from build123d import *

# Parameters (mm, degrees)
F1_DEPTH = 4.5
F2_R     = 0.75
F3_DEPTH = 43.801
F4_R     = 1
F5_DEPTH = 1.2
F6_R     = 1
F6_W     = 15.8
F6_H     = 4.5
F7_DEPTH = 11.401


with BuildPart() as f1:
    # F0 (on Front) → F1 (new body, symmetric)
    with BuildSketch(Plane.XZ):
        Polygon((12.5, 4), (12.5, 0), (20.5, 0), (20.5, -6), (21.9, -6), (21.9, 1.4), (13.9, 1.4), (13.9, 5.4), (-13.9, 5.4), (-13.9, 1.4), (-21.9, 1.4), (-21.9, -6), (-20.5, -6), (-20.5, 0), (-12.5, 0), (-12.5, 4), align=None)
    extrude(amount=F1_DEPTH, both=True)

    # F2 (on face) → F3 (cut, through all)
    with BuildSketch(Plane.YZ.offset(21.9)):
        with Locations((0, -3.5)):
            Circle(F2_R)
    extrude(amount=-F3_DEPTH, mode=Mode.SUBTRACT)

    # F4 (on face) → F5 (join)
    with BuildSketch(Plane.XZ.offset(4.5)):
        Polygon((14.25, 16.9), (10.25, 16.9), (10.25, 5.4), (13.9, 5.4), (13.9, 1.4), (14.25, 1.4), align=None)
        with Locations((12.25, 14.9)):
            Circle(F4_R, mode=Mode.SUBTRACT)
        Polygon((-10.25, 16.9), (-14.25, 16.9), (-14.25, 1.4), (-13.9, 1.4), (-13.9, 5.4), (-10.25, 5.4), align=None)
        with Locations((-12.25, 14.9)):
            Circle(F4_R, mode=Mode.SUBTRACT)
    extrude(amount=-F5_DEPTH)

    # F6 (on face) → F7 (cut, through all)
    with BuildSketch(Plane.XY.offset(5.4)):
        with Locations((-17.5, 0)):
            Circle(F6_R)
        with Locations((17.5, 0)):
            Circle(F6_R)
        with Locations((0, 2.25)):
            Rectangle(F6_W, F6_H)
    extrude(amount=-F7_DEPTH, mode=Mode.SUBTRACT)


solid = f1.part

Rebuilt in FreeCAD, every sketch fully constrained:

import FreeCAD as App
import Part
import Sketcher
from FreeCAD import Vector
Q = App.Units.Quantity

doc = App.newDocument("Part")
body = doc.addObject("PartDesign::Body", "Body")

sketch1 = body.newObject("Sketcher::SketchObject", "Sketch")
sketch1.AttachmentSupport = (doc.getObject("XZ_Plane"), [""])
sketch1.MapMode = "FlatFace"
sketch1.addGeometry([
    Part.LineSegment(Vector(12.5, 4, 0), Vector(12.5, 0, 0)),
    Part.LineSegment(Vector(12.5, 0, 0), Vector(20.5, 0, 0)),
    Part.LineSegment(Vector(20.5, 0, 0), Vector(20.5, -6, 0)),
    Part.LineSegment(Vector(20.5, -6, 0), Vector(21.9, -6, 0)),
    Part.LineSegment(Vector(21.9, -6, 0), Vector(21.9, 1.4, 0)),
    Part.LineSegment(Vector(21.9, 1.4, 0), Vector(13.9, 1.4, 0)),
    Part.LineSegment(Vector(13.9, 1.4, 0), Vector(13.9, 5.4, 0)),
    Part.LineSegment(Vector(13.9, 5.4, 0), Vector(-13.9, 5.4, 0)),
    Part.LineSegment(Vector(-13.9, 5.4, 0), Vector(-13.9, 1.4, 0)),
    Part.LineSegment(Vector(-13.9, 1.4, 0), Vector(-21.9, 1.4, 0)),
    Part.LineSegment(Vector(-21.9, 1.4, 0), Vector(-21.9, -6, 0)),
    Part.LineSegment(Vector(-21.9, -6, 0), Vector(-20.5, -6, 0)),
    Part.LineSegment(Vector(-20.5, -6, 0), Vector(-20.5, 0, 0)),
    Part.LineSegment(Vector(-20.5, 0, 0), Vector(-12.5, 0, 0)),
    Part.LineSegment(Vector(-12.5, 0, 0), Vector(-12.5, 4, 0)),
    Part.LineSegment(Vector(-12.5, 4, 0), Vector(12.5, 4, 0)),
], False)
sketch1.addConstraint([
    Sketcher.Constraint("Coincident", 0, 2, 1, 1),
    Sketcher.Constraint("Coincident", 1, 2, 2, 1),
    Sketcher.Constraint("Coincident", 2, 2, 3, 1),
    Sketcher.Constraint("Coincident", 3, 2, 4, 1),
    Sketcher.Constraint("Coincident", 4, 2, 5, 1),
    Sketcher.Constraint("Coincident", 5, 2, 6, 1),
    Sketcher.Constraint("Coincident", 6, 2, 7, 1),
    Sketcher.Constraint("Coincident", 7, 2, 8, 1),
    Sketcher.Constraint("Coincident", 8, 2, 9, 1),
    Sketcher.Constraint("Coincident", 9, 2, 10, 1),
    Sketcher.Constraint("Coincident", 10, 2, 11, 1),
    Sketcher.Constraint("Coincident", 11, 2, 12, 1),
    Sketcher.Constraint("Coincident", 12, 2, 13, 1),
    Sketcher.Constraint("Coincident", 13, 2, 14, 1),
    Sketcher.Constraint("Coincident", 14, 2, 15, 1),
    Sketcher.Constraint("Coincident", 15, 2, 0, 1),
    Sketcher.Constraint("Vertical", 0),
    Sketcher.Constraint("Horizontal", 1),
    Sketcher.Constraint("Vertical", 2),
    Sketcher.Constraint("Horizontal", 3),
    Sketcher.Constraint("Vertical", 4),
    Sketcher.Constraint("Horizontal", 5),
    Sketcher.Constraint("Vertical", 6),
    Sketcher.Constraint("Horizontal", 7),
    Sketcher.Constraint("Vertical", 8),
    Sketcher.Constraint("Horizontal", 9),
    Sketcher.Constraint("Vertical", 10),
    Sketcher.Constraint("Horizontal", 11),
    Sketcher.Constraint("Vertical", 12),
    Sketcher.Constraint("Horizontal", 13),
    Sketcher.Constraint("Vertical", 14),
    Sketcher.Constraint("Horizontal", 15),
    Sketcher.Constraint("Symmetric", 1, 2, 12, 2, -1, 1),
    Sketcher.Constraint("Symmetric", 5, 2, 8, 2, -2),
    Sketcher.Constraint("Symmetric", 3, 2, 10, 2, -2),
    Sketcher.Constraint("Symmetric", 0, 2, 13, 2, -2),
    Sketcher.Constraint("Equal", 1, 5),
    Sketcher.Constraint("Equal", 0, 6),
    Sketcher.Constraint("DistanceX", 1, 1, 1, 2, Q("8 mm")),
    Sketcher.Constraint("DistanceX", 15, 1, 15, 2, Q("25 mm")),
    Sketcher.Constraint("DistanceY", 0, 2, 0, 1, Q("4 mm")),
    Sketcher.Constraint("DistanceY", 2, 2, 2, 1, Q("6 mm")),
    Sketcher.Constraint("DistanceX", 3, 1, 3, 2, Q("1.4 mm")),
    Sketcher.Constraint("DistanceY", 4, 1, 4, 2, Q("7.4 mm")),
])
pad1 = body.newObject("PartDesign::Pad", "Pad")
pad1.Profile = sketch1
pad1.Length = 9
pad1.Midplane = True

sketch2 = body.newObject("Sketcher::SketchObject", "Sketch001")
sketch2.AttachmentSupport = (doc.getObject("YZ_Plane"), [""])
sketch2.MapMode = "FlatFace"
sketch2.AttachmentOffset = App.Placement(Vector(0, 0, 21.9), App.Rotation())
sketch2.addGeometry(Part.Circle(Vector(0, -3.5, 0), Vector(0, 0, 1), 0.8), False)
sketch2.addConstraint([
    Sketcher.Constraint("PointOnObject", 0, 3, -2),
    Sketcher.Constraint("Diameter", 0, Q("1.5 mm")),
    Sketcher.Constraint("DistanceY", 0, 3, -1, 1, Q("3.5 mm")),
])
pocket1 = body.newObject("PartDesign::Pocket", "Pocket")
pocket1.Profile = sketch2
pocket1.Type = "ThroughAll"

sketch3 = body.newObject("Sketcher::SketchObject", "Sketch002")
sketch3.AttachmentSupport = (doc.getObject("XZ_Plane"), [""])
sketch3.MapMode = "FlatFace"
sketch3.AttachmentOffset = App.Placement(Vector(0, 0, 4.5), App.Rotation())
sketch3.addGeometry([
    Part.LineSegment(Vector(14.25, 16.9, 0), Vector(10.25, 16.9, 0)),
    Part.LineSegment(Vector(10.25, 16.9, 0), Vector(10.25, 5.4, 0)),
    Part.LineSegment(Vector(10.25, 5.4, 0), Vector(13.9, 5.4, 0)),
    Part.LineSegment(Vector(13.9, 5.4, 0), Vector(13.9, 1.4, 0)),
    Part.LineSegment(Vector(13.9, 1.4, 0), Vector(14.25, 1.4, 0)),
    Part.LineSegment(Vector(14.25, 1.4, 0), Vector(14.25, 16.9, 0)),
    Part.Circle(Vector(12.25, 14.9, 0), Vector(0, 0, 1), 1),
    Part.LineSegment(Vector(-10.25, 16.9, 0), Vector(-14.25, 16.9, 0)),
    Part.LineSegment(Vector(-14.25, 16.9, 0), Vector(-14.25, 1.4, 0)),
    Part.LineSegment(Vector(-14.25, 1.4, 0), Vector(-13.9, 1.4, 0)),
    Part.LineSegment(Vector(-13.9, 1.4, 0), Vector(-13.9, 5.4, 0)),
    Part.LineSegment(Vector(-13.9, 5.4, 0), Vector(-10.25, 5.4, 0)),
    Part.LineSegment(Vector(-10.25, 5.4, 0), Vector(-10.25, 16.9, 0)),
    Part.Circle(Vector(-12.25, 14.9, 0), Vector(0, 0, 1), 1),
], False)
sketch3.addConstraint([
    Sketcher.Constraint("Coincident", 0, 2, 1, 1),
    Sketcher.Constraint("Coincident", 1, 2, 2, 1),
    Sketcher.Constraint("Coincident", 2, 2, 3, 1),
    Sketcher.Constraint("Coincident", 3, 2, 4, 1),
    Sketcher.Constraint("Coincident", 4, 2, 5, 1),
    Sketcher.Constraint("Coincident", 5, 2, 0, 1),
    Sketcher.Constraint("Coincident", 7, 2, 8, 1),
    Sketcher.Constraint("Coincident", 8, 2, 9, 1),
    Sketcher.Constraint("Coincident", 9, 2, 10, 1),
    Sketcher.Constraint("Coincident", 10, 2, 11, 1),
    Sketcher.Constraint("Coincident", 11, 2, 12, 1),
    Sketcher.Constraint("Coincident", 12, 2, 7, 1),
    Sketcher.Constraint("Horizontal", 0),
    Sketcher.Constraint("Vertical", 1),
    Sketcher.Constraint("Horizontal", 2),
    Sketcher.Constraint("Vertical", 3),
    Sketcher.Constraint("Horizontal", 4),
    Sketcher.Constraint("Vertical", 5),
    Sketcher.Constraint("Horizontal", 7),
    Sketcher.Constraint("Vertical", 8),
    Sketcher.Constraint("Horizontal", 9),
    Sketcher.Constraint("Vertical", 10),
    Sketcher.Constraint("Horizontal", 11),
    Sketcher.Constraint("Vertical", 12),
    Sketcher.Constraint("Equal", 6, 13),
    Sketcher.Constraint("Symmetric", 6, 3, 13, 3, -2),
    Sketcher.Constraint("Symmetric", 5, 2, 7, 2, -2),
    Sketcher.Constraint("Symmetric", 3, 2, 9, 2, -2),
    Sketcher.Constraint("Symmetric", 1, 2, 11, 2, -2),
    Sketcher.Constraint("Equal", 7, 3),
    Sketcher.Constraint("Diameter", 6, Q("2 mm")),
    Sketcher.Constraint("DistanceX", 0, 2, 0, 1, Q("4 mm")),
    Sketcher.Constraint("DistanceY", 1, 2, 1, 1, Q("11.5 mm")),
    Sketcher.Constraint("DistanceX", 0, 2, 6, 3, Q("2 mm")),
    Sketcher.Constraint("DistanceY", 6, 3, 0, 2, Q("2 mm")),
    Sketcher.Constraint("DistanceX", 2, 1, 2, 2, Q("3.65 mm")),
    Sketcher.Constraint("DistanceY", -1, 1, 6, 3, Q("14.9 mm")),
    Sketcher.Constraint("DistanceX", -1, 1, 2, 2, Q("13.9 mm")),
])
pad2 = body.newObject("PartDesign::Pad", "Pad001")
pad2.Profile = sketch3
pad2.Length = 1.2
pad2.Reversed = True

sketch4 = body.newObject("Sketcher::SketchObject", "Sketch003")
sketch4.AttachmentSupport = (doc.getObject("XY_Plane"), [""])
sketch4.MapMode = "FlatFace"
sketch4.AttachmentOffset = App.Placement(Vector(0, 0, 5.4), App.Rotation())
sketch4.addGeometry([
    Part.Circle(Vector(-17.5, 0, 0), Vector(0, 0, 1), 1),
    Part.Circle(Vector(17.5, 0, 0), Vector(0, 0, 1), 1),
    Part.LineSegment(Vector(-7.9, 4.5, 0), Vector(-7.9, 0, 0)),
    Part.LineSegment(Vector(-7.9, 0, 0), Vector(7.9, 0, 0)),
    Part.LineSegment(Vector(7.9, 0, 0), Vector(7.9, 4.5, 0)),
    Part.LineSegment(Vector(7.9, 4.5, 0), Vector(-7.9, 4.5, 0)),
], False)
sketch4.addConstraint([
    Sketcher.Constraint("Coincident", 2, 2, 3, 1),
    Sketcher.Constraint("Coincident", 3, 2, 4, 1),
    Sketcher.Constraint("Coincident", 4, 2, 5, 1),
    Sketcher.Constraint("Coincident", 5, 2, 2, 1),
    Sketcher.Constraint("Vertical", 2),
    Sketcher.Constraint("Horizontal", 3),
    Sketcher.Constraint("Vertical", 4),
    Sketcher.Constraint("Horizontal", 5),
    Sketcher.Constraint("Equal", 0, 1),
    Sketcher.Constraint("Symmetric", 0, 3, 1, 3, -1, 1),
    Sketcher.Constraint("Symmetric", 2, 2, 3, 2, -1, 1),
    Sketcher.Constraint("PointOnObject", 0, 3, -1),
    Sketcher.Constraint("Diameter", 0, Q("2 mm")),
    Sketcher.Constraint("DistanceX", 3, 1, 3, 2, Q("15.8 mm")),
    Sketcher.Constraint("DistanceY", 2, 2, 2, 1, Q("4.5 mm")),
    Sketcher.Constraint("DistanceX", 0, 3, 1, 3, Q("35 mm")),
])
pocket2 = body.newObject("PartDesign::Pocket", "Pocket001")
pocket2.Profile = sketch4
pocket2.Type = "ThroughAll"

doc.recompute()
